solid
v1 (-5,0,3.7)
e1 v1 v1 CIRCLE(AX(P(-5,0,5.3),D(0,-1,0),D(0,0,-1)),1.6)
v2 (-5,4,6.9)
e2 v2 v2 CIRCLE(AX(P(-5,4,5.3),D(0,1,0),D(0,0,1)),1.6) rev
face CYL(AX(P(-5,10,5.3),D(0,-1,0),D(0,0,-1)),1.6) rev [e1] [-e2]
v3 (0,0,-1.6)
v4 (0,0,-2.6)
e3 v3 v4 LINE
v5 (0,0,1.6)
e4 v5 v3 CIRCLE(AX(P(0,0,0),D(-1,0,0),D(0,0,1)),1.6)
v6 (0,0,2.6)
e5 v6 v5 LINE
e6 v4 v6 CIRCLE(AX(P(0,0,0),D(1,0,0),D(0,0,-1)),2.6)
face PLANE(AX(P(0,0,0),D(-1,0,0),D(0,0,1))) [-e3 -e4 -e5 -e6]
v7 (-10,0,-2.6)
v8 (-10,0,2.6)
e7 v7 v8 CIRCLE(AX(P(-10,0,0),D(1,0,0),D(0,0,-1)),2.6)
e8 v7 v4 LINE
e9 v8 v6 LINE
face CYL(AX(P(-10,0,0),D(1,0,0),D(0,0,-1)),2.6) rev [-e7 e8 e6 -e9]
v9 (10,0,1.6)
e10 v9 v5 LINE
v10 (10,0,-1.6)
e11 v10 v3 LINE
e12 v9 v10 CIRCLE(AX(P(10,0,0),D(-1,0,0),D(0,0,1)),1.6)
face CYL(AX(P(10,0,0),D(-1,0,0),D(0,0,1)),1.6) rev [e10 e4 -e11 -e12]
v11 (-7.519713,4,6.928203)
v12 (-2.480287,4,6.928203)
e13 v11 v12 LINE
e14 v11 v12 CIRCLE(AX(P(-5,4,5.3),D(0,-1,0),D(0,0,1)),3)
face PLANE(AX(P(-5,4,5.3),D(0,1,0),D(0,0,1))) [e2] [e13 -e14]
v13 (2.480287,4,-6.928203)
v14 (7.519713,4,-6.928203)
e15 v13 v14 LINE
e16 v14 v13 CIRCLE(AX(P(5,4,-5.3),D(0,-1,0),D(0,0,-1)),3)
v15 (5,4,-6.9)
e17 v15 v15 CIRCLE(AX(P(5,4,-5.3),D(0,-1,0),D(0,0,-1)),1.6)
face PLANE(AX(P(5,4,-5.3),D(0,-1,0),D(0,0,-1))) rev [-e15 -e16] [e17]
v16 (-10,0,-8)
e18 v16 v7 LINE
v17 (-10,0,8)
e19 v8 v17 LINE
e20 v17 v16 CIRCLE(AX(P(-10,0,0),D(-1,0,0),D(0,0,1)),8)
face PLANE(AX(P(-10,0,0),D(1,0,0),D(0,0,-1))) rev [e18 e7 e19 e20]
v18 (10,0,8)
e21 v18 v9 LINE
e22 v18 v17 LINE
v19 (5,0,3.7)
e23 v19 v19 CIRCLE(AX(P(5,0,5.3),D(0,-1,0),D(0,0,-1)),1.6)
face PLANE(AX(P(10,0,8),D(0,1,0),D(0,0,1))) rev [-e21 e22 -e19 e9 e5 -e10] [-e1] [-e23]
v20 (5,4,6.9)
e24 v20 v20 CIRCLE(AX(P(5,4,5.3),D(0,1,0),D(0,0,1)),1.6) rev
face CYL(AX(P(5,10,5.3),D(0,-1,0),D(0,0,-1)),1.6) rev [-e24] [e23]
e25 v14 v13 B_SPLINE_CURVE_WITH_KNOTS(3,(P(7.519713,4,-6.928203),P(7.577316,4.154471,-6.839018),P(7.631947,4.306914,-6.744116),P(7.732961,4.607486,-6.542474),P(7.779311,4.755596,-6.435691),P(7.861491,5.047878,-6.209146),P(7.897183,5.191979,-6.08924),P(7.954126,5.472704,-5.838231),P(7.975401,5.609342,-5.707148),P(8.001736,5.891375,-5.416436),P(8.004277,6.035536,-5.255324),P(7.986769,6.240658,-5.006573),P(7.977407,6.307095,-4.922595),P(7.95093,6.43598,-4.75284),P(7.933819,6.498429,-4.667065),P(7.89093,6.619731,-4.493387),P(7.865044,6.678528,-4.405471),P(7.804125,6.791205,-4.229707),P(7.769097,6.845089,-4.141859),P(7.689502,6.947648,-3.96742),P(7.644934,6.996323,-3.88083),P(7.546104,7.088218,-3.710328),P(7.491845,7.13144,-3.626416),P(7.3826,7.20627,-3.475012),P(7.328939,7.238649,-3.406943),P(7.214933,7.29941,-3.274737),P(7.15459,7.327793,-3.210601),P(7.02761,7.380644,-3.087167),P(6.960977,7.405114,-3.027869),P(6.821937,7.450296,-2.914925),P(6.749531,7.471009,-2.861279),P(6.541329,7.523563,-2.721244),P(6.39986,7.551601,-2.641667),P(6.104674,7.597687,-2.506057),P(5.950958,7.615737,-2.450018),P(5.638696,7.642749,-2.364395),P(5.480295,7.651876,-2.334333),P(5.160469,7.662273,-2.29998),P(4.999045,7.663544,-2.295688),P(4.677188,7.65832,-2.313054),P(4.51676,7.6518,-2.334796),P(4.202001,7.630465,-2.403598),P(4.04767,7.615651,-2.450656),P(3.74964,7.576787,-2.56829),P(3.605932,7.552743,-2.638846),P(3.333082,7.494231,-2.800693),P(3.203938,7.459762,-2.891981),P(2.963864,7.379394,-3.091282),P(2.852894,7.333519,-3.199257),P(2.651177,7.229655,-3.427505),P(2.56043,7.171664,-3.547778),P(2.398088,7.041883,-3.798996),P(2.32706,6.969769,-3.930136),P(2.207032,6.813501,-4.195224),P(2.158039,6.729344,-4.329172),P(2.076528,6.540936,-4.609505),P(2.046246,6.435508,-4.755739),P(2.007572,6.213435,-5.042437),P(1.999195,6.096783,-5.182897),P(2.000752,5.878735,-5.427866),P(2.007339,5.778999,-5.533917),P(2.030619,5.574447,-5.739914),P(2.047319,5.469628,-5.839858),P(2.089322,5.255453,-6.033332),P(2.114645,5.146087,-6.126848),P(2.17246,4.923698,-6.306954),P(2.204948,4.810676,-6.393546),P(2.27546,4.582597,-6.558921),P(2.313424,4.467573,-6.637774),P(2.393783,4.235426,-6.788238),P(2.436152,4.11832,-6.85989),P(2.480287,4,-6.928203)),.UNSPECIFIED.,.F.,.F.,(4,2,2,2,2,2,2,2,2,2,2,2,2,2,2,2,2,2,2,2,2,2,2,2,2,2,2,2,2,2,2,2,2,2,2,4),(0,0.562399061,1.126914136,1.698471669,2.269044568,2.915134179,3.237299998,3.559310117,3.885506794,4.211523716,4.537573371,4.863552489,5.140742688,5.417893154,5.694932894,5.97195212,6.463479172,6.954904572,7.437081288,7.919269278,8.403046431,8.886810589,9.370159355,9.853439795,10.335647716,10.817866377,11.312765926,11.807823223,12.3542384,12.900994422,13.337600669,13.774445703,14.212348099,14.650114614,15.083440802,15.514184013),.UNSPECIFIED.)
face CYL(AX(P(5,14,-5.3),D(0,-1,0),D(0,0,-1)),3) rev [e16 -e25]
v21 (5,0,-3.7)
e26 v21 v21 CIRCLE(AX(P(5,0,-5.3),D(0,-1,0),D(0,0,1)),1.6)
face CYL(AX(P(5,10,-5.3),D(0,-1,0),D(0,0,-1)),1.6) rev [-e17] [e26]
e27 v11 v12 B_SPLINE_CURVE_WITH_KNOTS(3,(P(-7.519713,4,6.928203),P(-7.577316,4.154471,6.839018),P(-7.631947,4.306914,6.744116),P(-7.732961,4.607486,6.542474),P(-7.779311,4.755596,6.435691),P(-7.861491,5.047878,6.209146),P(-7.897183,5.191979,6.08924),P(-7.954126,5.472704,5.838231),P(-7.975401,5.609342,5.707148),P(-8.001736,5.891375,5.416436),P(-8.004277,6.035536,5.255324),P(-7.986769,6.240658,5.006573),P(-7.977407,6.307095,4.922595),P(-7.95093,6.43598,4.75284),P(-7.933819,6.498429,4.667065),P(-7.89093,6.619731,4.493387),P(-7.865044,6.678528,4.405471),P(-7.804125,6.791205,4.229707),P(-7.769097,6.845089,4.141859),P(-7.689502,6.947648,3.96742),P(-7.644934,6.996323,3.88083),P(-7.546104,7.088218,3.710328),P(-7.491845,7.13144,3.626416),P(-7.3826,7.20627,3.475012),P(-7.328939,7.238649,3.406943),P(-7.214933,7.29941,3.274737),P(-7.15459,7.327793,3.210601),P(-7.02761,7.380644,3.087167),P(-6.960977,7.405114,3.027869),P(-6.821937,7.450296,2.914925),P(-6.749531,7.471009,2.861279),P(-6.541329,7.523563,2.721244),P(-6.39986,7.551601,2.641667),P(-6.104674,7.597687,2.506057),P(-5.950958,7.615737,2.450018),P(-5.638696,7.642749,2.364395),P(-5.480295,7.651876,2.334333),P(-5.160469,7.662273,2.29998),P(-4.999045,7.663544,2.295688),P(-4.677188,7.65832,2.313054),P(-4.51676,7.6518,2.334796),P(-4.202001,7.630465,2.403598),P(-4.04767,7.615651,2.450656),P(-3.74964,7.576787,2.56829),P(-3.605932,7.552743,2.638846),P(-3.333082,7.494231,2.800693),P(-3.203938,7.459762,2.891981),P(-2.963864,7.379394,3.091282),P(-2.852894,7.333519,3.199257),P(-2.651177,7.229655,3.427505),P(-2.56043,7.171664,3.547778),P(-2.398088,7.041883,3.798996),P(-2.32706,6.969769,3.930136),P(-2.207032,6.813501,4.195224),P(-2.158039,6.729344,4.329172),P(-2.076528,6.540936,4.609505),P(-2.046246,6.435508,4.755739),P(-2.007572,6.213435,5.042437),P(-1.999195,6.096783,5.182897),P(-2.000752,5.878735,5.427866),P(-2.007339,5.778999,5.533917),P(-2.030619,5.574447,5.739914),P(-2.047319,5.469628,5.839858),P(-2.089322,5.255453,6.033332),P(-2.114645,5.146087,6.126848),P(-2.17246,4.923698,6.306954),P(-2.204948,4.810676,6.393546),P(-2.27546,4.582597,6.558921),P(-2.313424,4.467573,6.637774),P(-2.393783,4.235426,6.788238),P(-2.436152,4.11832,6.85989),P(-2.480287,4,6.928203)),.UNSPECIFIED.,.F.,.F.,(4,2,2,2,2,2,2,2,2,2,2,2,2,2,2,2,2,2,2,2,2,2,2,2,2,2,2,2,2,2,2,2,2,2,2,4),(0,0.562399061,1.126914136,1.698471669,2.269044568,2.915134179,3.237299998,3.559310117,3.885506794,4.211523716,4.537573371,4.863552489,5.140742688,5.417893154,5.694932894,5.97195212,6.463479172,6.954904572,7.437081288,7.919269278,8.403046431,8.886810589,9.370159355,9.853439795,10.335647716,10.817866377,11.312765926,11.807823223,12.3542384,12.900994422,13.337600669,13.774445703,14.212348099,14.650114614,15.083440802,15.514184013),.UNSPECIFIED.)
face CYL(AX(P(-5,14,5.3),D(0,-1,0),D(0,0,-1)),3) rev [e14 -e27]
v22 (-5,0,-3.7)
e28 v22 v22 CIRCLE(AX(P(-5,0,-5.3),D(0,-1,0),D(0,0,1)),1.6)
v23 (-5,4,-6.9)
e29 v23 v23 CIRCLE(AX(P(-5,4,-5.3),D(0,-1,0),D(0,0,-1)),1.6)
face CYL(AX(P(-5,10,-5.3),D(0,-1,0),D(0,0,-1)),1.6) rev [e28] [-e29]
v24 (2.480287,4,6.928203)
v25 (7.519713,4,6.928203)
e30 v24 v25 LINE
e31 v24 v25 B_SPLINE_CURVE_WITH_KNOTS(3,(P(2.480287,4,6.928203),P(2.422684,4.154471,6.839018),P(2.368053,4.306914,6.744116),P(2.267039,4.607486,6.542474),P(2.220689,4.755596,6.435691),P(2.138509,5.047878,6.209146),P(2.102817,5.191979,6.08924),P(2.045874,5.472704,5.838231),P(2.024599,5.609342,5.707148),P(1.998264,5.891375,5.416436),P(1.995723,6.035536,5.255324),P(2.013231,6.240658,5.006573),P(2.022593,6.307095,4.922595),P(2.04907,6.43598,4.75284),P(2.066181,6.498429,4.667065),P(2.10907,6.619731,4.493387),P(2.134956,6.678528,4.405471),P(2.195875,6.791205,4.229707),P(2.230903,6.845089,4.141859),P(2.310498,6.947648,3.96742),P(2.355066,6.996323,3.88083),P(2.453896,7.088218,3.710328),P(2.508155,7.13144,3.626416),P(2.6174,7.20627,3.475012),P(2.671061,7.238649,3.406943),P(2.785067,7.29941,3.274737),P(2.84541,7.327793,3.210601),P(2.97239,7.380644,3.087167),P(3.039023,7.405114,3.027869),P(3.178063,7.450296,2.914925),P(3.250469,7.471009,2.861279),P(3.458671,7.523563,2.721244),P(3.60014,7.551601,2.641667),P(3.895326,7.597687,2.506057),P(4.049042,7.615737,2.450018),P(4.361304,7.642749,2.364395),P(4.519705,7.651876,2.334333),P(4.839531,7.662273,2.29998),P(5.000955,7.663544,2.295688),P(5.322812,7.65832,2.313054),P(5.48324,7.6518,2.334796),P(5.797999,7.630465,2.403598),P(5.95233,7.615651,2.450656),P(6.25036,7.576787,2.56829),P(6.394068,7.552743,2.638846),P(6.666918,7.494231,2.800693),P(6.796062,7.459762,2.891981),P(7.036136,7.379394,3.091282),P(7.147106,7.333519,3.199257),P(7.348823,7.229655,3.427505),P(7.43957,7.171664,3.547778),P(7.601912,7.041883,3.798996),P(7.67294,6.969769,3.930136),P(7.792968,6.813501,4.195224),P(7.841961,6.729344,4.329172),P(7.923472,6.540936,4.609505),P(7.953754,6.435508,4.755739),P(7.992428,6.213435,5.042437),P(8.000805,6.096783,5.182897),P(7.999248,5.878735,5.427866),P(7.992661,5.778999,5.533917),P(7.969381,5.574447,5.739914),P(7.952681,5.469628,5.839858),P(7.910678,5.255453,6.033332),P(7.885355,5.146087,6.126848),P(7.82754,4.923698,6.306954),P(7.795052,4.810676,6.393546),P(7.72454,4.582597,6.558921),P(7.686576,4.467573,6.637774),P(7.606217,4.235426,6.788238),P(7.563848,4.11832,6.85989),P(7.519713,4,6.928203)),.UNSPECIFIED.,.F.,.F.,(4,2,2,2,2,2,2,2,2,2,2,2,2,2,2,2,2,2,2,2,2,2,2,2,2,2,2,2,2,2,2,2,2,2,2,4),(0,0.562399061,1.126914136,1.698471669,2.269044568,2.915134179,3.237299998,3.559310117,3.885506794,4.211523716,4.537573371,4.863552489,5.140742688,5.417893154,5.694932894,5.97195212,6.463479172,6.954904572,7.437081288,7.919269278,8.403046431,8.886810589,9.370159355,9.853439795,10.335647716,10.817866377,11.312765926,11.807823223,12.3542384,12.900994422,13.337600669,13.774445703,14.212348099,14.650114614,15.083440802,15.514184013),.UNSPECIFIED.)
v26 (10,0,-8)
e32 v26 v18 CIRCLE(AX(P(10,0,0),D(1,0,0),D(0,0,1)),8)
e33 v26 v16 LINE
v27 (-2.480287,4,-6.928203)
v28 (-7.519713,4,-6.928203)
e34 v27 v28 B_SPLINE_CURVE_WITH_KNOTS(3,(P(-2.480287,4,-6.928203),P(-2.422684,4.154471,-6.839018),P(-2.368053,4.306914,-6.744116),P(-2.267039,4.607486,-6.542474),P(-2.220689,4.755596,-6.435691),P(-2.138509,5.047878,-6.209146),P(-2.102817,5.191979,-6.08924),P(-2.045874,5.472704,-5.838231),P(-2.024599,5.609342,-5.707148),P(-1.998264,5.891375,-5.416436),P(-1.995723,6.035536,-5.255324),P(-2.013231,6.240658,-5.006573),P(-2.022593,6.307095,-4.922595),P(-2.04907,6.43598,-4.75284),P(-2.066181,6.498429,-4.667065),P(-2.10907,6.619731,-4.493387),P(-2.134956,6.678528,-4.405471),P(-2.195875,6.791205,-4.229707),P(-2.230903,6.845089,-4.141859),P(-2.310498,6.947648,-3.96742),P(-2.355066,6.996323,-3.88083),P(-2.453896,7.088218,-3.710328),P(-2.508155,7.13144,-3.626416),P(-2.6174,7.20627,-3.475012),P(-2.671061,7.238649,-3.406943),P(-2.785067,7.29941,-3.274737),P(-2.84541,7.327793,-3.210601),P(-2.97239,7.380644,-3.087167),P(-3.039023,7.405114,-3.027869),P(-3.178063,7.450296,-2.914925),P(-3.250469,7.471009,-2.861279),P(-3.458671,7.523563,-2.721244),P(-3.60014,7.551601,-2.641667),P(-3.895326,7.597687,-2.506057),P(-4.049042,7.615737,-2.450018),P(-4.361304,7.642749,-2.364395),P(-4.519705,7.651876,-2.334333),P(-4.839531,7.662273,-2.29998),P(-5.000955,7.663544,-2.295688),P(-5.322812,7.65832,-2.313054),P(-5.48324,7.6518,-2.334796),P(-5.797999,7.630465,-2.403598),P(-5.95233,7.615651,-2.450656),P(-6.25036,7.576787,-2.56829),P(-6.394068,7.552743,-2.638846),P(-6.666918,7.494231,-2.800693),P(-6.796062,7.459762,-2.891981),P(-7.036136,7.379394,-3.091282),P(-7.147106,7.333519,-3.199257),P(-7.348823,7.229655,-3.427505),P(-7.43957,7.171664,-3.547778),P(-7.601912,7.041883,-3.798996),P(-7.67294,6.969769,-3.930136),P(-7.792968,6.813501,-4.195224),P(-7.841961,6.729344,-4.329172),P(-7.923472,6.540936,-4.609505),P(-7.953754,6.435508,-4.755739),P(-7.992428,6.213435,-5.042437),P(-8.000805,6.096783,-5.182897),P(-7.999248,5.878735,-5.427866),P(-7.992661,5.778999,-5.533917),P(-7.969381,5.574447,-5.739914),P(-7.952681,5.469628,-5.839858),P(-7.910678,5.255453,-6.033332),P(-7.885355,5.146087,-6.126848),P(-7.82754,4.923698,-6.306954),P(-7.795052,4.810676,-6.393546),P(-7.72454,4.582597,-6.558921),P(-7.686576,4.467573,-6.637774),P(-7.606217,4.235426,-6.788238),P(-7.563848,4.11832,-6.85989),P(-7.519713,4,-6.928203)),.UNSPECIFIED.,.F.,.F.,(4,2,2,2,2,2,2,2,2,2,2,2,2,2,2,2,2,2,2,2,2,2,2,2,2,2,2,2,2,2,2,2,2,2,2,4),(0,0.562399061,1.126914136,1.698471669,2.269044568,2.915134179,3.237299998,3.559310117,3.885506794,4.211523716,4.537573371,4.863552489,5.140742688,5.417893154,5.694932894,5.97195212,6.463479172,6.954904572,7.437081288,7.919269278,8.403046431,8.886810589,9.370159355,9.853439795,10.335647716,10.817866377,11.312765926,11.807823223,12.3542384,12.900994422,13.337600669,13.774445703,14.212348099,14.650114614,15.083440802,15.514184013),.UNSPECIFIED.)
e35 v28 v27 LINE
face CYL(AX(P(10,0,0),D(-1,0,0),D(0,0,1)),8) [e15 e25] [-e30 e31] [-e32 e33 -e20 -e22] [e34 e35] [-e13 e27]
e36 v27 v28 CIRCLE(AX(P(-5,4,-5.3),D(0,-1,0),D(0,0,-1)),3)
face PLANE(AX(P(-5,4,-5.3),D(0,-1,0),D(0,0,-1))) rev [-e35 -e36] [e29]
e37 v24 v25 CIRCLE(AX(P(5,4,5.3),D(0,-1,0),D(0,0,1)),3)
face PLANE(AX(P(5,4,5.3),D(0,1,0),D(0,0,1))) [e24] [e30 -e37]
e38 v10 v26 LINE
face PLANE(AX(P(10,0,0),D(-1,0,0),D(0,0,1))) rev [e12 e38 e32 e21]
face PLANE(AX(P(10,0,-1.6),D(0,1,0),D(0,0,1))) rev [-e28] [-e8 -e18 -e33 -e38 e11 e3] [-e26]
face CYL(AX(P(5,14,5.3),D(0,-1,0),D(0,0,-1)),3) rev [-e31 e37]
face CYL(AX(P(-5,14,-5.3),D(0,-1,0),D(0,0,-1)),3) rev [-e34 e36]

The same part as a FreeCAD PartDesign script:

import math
import FreeCAD as App
import Part
import Sketcher

V = App.Vector

doc = App.newDocument("Part")
params = doc.addObject("Spreadsheet::Sheet", "Params")
for row, (alias, value) in enumerate([
    ("sketch1_radius", "8 mm"),
    ("sketch1_radius2", "1.6 mm"),
    ("pad1_length", "10 mm"),
    ("sketch2_radius", "8 mm"),
    ("sketch2_radius2", "2.6 mm"),
    ("pad2_length", "10 mm"),
    ("sketch3_diameter", "3.2 mm"),
    ("pocket1_length", "10 mm"),
    ("sketch4_diameter", "6 mm"),
    ("sketch4_diameter2", "3.2 mm"),
    ("pocket2_length", "10 mm"),
], start=1):
    params.set(f"A{row}", alias)
    params.set(f"B{row}", "=" + value)
    params.setAlias(f"B{row}", alias)

body = doc.addObject("PartDesign::Body", "Body")

# Sketch on YZ plane
sketch1 = doc.addObject("Sketcher::SketchObject", "Sketch")
body.addObject(sketch1)
sketch1.AttachmentSupport = (doc.YZ_Plane, [""])
sketch1.MapMode = "FlatFace"
sketch1.addGeometry([
    Part.LineSegment(V(0, 8, 0), V(0, 1.6, 0)),
    Part.ArcOfCircle(Part.Circle(V(0, 0, 0), V(0, 0, 1), 1.6), math.radians(-90), math.radians(90)),
    Part.LineSegment(V(0, -1.6, 0), V(0, -8, 0)),
    Part.ArcOfCircle(Part.Circle(V(0, 0, 0), V(0, 0, 1), 8), math.radians(-90), math.radians(90)),
], False)
sketch1.addConstraint([
    Sketcher.Constraint("Coincident", 0, 2, 1, 2),
    Sketcher.Constraint("Coincident", 1, 1, 2, 1),
    Sketcher.Constraint("Coincident", 2, 2, 3, 1),
    Sketcher.Constraint("Coincident", 3, 2, 0, 1),
    Sketcher.Constraint("Vertical", 0),
    Sketcher.Constraint("Vertical", 2),
    Sketcher.Constraint("Coincident", 1, 3, -1, 1),
    Sketcher.Constraint("Coincident", 3, 3, -1, 1),
    Sketcher.Constraint("PointOnObject", 0, 2, -2),
    Sketcher.Constraint("PointOnObject", 1, 1, -2),
    Sketcher.Constraint("Radius", 3, 8.0),
    Sketcher.Constraint("Radius", 1, 1.6),
])
sketch1.setExpression("Constraints[10]", "Params.sketch1_radius")
sketch1.setExpression("Constraints[11]", "Params.sketch1_radius2")
pad1 = doc.addObject("PartDesign::Pad", "Pad")
body.addObject(pad1)
pad1.Profile = sketch1
pad1.setExpression("Length", "Params.pad1_length")

# Sketch on YZ plane
sketch2 = doc.addObject("Sketcher::SketchObject", "Sketch001")
body.addObject(sketch2)
sketch2.AttachmentSupport = (doc.YZ_Plane, [""])
sketch2.MapMode = "FlatFace"
sketch2.addGeometry([
    Part.LineSegment(V(0, -8, 0), V(0, -2.6, 0)),
    Part.ArcOfCircle(Part.Circle(V(0, 0, 0), V(0, 0, 1), 2.6), math.radians(-90), math.radians(90)),
    Part.LineSegment(V(0, 2.6, 0), V(0, 8, 0)),
    Part.ArcOfCircle(Part.Circle(V(0, 0, 0), V(0, 0, 1), 8), math.radians(-90), math.radians(90)),
], False)
sketch2.addConstraint([
    Sketcher.Constraint("Coincident", 0, 2, 1, 1),
    Sketcher.Constraint("Coincident", 1, 2, 2, 1),
    Sketcher.Constraint("Coincident", 2, 2, 3, 2),
    Sketcher.Constraint("Coincident", 3, 1, 0, 1),
    Sketcher.Constraint("Vertical", 0),
    Sketcher.Constraint("Vertical", 2),
    Sketcher.Constraint("Coincident", 1, 3, -1, 1),
    Sketcher.Constraint("Coincident", 3, 3, -1, 1),
    Sketcher.Constraint("PointOnObject", 0, 2, -2),
    Sketcher.Constraint("PointOnObject", 1, 2, -2),
    Sketcher.Constraint("Radius", 3, 8.0),
    Sketcher.Constraint("Radius", 1, 2.6),
])
sketch2.setExpression("Constraints[10]", "Params.sketch2_radius")
sketch2.setExpression("Constraints[11]", "Params.sketch2_radius2")
pad2 = doc.addObject("PartDesign::Pad", "Pad001")
body.addObject(pad2)
pad2.Profile = sketch2
pad2.setExpression("Length", "Params.pad2_length")
pad2.Reversed = True

# Sketch on XZ plane
sketch3 = doc.addObject("Sketcher::SketchObject", "Sketch002")
body.addObject(sketch3)
sketch3.AttachmentSupport = (doc.XZ_Plane, [""])
sketch3.MapMode = "FlatFace"
sketch3.addGeometry([
    Part.Circle(V(-5, 5.3, 0), V(0, 0, 1), 1.6),
    Part.Circle(V(5, 5.3, 0), V(0, 0, 1), 1.6),
    Part.Circle(V(-5, -5.3, 0), V(0, 0, 1), 1.6),
    Part.Circle(V(5, -5.3, 0), V(0, 0, 1), 1.6),
], False)
sketch3.addConstraint([
    Sketcher.Constraint("Equal", 0, 1),
    Sketcher.Constraint("Equal", 1, 2),
    Sketcher.Constraint("Equal", 2, 3),
    Sketcher.Constraint("Symmetric", 1, 3, 2, 3, -1, 1),
    Sketcher.Constraint("Symmetric", 0, 3, 3, 3, -1, 1),
    Sketcher.Constraint("Symmetric", 0, 3, 1, 3, -2),
    Sketcher.Constraint("Diameter", 0, 3.2),
    Sketcher.Constraint("DistanceX", 0, 3, -1, 1, 5.0),
    Sketcher.Constraint("DistanceY", -1, 1, 0, 3, 5.3),
])
sketch3.setExpression("Constraints[6]", "Params.sketch3_diameter")
pocket1 = doc.addObject("PartDesign::Pocket", "Pocket")
body.addObject(pocket1)
pocket1.Profile = sketch3
pocket1.setExpression("Length", "Params.pocket1_length")

# Sketch on XZ plane
sketch4 = doc.addObject("Sketcher::SketchObject", "Sketch003")
body.addObject(sketch4)
sketch4.AttachmentSupport = (doc.XZ_Plane, [""])
sketch4.MapMode = "FlatFace"
sketch4.AttachmentOffset = App.Placement(V(0, 0, -4), App.Rotation())
sketch4.addGeometry([
    Part.Circle(V(5, -5.3, 0), V(0, 0, 1), 3),  # 0
    Part.Circle(V(5, -5.3, 0), V(0, 0, 1), 1.6),  # 1
    Part.Circle(V(-5, -5.3, 0), V(0, 0, 1), 3),  # 2
    Part.Circle(V(-5, -5.3, 0), V(0, 0, 1), 1.6),  # 3
    Part.Circle(V(-5, 5.3, 0), V(0, 0, 1), 3),  # 4
    Part.Circle(V(5, 5.3, 0), V(0, 0, 1), 3),  # 5
], False)
sketch4.addConstraint([
    Sketcher.Constraint("Coincident", 1, 3, 0, 3),
    Sketcher.Constraint("Coincident", 3, 3, 2, 3),
    Sketcher.Constraint("Equal", 0, 2),
    Sketcher.Constraint("Equal", 1, 3),
    Sketcher.Constraint("Equal", 2, 4),
    Sketcher.Constraint("Equal", 4, 5),
    Sketcher.Constraint("Symmetric", 0, 3, 4, 3, -1, 1),
    Sketcher.Constraint("Symmetric", 2, 3, 5, 3, -1, 1),
    Sketcher.Constraint("Symmetric", 0, 3, 2, 3, -2),
    Sketcher.Constraint("Diameter", 0, 6.0),
    Sketcher.Constraint("Diameter", 1, 3.2),
    Sketcher.Constraint("DistanceX", -1, 1, 0, 3, 5.0),
    Sketcher.Constraint("DistanceY", 0, 3, -1, 1, 5.3),
])
sketch4.setExpression("Constraints[9]", "Params.sketch4_diameter")
sketch4.setExpression("Constraints[10]", "Params.sketch4_diameter2")
pocket2 = doc.addObject("PartDesign::Pocket", "Pocket001")
body.addObject(pocket2)
pocket2.Profile = sketch4
pocket2.setExpression("Length", "Params.pocket2_length")

doc.recompute()
